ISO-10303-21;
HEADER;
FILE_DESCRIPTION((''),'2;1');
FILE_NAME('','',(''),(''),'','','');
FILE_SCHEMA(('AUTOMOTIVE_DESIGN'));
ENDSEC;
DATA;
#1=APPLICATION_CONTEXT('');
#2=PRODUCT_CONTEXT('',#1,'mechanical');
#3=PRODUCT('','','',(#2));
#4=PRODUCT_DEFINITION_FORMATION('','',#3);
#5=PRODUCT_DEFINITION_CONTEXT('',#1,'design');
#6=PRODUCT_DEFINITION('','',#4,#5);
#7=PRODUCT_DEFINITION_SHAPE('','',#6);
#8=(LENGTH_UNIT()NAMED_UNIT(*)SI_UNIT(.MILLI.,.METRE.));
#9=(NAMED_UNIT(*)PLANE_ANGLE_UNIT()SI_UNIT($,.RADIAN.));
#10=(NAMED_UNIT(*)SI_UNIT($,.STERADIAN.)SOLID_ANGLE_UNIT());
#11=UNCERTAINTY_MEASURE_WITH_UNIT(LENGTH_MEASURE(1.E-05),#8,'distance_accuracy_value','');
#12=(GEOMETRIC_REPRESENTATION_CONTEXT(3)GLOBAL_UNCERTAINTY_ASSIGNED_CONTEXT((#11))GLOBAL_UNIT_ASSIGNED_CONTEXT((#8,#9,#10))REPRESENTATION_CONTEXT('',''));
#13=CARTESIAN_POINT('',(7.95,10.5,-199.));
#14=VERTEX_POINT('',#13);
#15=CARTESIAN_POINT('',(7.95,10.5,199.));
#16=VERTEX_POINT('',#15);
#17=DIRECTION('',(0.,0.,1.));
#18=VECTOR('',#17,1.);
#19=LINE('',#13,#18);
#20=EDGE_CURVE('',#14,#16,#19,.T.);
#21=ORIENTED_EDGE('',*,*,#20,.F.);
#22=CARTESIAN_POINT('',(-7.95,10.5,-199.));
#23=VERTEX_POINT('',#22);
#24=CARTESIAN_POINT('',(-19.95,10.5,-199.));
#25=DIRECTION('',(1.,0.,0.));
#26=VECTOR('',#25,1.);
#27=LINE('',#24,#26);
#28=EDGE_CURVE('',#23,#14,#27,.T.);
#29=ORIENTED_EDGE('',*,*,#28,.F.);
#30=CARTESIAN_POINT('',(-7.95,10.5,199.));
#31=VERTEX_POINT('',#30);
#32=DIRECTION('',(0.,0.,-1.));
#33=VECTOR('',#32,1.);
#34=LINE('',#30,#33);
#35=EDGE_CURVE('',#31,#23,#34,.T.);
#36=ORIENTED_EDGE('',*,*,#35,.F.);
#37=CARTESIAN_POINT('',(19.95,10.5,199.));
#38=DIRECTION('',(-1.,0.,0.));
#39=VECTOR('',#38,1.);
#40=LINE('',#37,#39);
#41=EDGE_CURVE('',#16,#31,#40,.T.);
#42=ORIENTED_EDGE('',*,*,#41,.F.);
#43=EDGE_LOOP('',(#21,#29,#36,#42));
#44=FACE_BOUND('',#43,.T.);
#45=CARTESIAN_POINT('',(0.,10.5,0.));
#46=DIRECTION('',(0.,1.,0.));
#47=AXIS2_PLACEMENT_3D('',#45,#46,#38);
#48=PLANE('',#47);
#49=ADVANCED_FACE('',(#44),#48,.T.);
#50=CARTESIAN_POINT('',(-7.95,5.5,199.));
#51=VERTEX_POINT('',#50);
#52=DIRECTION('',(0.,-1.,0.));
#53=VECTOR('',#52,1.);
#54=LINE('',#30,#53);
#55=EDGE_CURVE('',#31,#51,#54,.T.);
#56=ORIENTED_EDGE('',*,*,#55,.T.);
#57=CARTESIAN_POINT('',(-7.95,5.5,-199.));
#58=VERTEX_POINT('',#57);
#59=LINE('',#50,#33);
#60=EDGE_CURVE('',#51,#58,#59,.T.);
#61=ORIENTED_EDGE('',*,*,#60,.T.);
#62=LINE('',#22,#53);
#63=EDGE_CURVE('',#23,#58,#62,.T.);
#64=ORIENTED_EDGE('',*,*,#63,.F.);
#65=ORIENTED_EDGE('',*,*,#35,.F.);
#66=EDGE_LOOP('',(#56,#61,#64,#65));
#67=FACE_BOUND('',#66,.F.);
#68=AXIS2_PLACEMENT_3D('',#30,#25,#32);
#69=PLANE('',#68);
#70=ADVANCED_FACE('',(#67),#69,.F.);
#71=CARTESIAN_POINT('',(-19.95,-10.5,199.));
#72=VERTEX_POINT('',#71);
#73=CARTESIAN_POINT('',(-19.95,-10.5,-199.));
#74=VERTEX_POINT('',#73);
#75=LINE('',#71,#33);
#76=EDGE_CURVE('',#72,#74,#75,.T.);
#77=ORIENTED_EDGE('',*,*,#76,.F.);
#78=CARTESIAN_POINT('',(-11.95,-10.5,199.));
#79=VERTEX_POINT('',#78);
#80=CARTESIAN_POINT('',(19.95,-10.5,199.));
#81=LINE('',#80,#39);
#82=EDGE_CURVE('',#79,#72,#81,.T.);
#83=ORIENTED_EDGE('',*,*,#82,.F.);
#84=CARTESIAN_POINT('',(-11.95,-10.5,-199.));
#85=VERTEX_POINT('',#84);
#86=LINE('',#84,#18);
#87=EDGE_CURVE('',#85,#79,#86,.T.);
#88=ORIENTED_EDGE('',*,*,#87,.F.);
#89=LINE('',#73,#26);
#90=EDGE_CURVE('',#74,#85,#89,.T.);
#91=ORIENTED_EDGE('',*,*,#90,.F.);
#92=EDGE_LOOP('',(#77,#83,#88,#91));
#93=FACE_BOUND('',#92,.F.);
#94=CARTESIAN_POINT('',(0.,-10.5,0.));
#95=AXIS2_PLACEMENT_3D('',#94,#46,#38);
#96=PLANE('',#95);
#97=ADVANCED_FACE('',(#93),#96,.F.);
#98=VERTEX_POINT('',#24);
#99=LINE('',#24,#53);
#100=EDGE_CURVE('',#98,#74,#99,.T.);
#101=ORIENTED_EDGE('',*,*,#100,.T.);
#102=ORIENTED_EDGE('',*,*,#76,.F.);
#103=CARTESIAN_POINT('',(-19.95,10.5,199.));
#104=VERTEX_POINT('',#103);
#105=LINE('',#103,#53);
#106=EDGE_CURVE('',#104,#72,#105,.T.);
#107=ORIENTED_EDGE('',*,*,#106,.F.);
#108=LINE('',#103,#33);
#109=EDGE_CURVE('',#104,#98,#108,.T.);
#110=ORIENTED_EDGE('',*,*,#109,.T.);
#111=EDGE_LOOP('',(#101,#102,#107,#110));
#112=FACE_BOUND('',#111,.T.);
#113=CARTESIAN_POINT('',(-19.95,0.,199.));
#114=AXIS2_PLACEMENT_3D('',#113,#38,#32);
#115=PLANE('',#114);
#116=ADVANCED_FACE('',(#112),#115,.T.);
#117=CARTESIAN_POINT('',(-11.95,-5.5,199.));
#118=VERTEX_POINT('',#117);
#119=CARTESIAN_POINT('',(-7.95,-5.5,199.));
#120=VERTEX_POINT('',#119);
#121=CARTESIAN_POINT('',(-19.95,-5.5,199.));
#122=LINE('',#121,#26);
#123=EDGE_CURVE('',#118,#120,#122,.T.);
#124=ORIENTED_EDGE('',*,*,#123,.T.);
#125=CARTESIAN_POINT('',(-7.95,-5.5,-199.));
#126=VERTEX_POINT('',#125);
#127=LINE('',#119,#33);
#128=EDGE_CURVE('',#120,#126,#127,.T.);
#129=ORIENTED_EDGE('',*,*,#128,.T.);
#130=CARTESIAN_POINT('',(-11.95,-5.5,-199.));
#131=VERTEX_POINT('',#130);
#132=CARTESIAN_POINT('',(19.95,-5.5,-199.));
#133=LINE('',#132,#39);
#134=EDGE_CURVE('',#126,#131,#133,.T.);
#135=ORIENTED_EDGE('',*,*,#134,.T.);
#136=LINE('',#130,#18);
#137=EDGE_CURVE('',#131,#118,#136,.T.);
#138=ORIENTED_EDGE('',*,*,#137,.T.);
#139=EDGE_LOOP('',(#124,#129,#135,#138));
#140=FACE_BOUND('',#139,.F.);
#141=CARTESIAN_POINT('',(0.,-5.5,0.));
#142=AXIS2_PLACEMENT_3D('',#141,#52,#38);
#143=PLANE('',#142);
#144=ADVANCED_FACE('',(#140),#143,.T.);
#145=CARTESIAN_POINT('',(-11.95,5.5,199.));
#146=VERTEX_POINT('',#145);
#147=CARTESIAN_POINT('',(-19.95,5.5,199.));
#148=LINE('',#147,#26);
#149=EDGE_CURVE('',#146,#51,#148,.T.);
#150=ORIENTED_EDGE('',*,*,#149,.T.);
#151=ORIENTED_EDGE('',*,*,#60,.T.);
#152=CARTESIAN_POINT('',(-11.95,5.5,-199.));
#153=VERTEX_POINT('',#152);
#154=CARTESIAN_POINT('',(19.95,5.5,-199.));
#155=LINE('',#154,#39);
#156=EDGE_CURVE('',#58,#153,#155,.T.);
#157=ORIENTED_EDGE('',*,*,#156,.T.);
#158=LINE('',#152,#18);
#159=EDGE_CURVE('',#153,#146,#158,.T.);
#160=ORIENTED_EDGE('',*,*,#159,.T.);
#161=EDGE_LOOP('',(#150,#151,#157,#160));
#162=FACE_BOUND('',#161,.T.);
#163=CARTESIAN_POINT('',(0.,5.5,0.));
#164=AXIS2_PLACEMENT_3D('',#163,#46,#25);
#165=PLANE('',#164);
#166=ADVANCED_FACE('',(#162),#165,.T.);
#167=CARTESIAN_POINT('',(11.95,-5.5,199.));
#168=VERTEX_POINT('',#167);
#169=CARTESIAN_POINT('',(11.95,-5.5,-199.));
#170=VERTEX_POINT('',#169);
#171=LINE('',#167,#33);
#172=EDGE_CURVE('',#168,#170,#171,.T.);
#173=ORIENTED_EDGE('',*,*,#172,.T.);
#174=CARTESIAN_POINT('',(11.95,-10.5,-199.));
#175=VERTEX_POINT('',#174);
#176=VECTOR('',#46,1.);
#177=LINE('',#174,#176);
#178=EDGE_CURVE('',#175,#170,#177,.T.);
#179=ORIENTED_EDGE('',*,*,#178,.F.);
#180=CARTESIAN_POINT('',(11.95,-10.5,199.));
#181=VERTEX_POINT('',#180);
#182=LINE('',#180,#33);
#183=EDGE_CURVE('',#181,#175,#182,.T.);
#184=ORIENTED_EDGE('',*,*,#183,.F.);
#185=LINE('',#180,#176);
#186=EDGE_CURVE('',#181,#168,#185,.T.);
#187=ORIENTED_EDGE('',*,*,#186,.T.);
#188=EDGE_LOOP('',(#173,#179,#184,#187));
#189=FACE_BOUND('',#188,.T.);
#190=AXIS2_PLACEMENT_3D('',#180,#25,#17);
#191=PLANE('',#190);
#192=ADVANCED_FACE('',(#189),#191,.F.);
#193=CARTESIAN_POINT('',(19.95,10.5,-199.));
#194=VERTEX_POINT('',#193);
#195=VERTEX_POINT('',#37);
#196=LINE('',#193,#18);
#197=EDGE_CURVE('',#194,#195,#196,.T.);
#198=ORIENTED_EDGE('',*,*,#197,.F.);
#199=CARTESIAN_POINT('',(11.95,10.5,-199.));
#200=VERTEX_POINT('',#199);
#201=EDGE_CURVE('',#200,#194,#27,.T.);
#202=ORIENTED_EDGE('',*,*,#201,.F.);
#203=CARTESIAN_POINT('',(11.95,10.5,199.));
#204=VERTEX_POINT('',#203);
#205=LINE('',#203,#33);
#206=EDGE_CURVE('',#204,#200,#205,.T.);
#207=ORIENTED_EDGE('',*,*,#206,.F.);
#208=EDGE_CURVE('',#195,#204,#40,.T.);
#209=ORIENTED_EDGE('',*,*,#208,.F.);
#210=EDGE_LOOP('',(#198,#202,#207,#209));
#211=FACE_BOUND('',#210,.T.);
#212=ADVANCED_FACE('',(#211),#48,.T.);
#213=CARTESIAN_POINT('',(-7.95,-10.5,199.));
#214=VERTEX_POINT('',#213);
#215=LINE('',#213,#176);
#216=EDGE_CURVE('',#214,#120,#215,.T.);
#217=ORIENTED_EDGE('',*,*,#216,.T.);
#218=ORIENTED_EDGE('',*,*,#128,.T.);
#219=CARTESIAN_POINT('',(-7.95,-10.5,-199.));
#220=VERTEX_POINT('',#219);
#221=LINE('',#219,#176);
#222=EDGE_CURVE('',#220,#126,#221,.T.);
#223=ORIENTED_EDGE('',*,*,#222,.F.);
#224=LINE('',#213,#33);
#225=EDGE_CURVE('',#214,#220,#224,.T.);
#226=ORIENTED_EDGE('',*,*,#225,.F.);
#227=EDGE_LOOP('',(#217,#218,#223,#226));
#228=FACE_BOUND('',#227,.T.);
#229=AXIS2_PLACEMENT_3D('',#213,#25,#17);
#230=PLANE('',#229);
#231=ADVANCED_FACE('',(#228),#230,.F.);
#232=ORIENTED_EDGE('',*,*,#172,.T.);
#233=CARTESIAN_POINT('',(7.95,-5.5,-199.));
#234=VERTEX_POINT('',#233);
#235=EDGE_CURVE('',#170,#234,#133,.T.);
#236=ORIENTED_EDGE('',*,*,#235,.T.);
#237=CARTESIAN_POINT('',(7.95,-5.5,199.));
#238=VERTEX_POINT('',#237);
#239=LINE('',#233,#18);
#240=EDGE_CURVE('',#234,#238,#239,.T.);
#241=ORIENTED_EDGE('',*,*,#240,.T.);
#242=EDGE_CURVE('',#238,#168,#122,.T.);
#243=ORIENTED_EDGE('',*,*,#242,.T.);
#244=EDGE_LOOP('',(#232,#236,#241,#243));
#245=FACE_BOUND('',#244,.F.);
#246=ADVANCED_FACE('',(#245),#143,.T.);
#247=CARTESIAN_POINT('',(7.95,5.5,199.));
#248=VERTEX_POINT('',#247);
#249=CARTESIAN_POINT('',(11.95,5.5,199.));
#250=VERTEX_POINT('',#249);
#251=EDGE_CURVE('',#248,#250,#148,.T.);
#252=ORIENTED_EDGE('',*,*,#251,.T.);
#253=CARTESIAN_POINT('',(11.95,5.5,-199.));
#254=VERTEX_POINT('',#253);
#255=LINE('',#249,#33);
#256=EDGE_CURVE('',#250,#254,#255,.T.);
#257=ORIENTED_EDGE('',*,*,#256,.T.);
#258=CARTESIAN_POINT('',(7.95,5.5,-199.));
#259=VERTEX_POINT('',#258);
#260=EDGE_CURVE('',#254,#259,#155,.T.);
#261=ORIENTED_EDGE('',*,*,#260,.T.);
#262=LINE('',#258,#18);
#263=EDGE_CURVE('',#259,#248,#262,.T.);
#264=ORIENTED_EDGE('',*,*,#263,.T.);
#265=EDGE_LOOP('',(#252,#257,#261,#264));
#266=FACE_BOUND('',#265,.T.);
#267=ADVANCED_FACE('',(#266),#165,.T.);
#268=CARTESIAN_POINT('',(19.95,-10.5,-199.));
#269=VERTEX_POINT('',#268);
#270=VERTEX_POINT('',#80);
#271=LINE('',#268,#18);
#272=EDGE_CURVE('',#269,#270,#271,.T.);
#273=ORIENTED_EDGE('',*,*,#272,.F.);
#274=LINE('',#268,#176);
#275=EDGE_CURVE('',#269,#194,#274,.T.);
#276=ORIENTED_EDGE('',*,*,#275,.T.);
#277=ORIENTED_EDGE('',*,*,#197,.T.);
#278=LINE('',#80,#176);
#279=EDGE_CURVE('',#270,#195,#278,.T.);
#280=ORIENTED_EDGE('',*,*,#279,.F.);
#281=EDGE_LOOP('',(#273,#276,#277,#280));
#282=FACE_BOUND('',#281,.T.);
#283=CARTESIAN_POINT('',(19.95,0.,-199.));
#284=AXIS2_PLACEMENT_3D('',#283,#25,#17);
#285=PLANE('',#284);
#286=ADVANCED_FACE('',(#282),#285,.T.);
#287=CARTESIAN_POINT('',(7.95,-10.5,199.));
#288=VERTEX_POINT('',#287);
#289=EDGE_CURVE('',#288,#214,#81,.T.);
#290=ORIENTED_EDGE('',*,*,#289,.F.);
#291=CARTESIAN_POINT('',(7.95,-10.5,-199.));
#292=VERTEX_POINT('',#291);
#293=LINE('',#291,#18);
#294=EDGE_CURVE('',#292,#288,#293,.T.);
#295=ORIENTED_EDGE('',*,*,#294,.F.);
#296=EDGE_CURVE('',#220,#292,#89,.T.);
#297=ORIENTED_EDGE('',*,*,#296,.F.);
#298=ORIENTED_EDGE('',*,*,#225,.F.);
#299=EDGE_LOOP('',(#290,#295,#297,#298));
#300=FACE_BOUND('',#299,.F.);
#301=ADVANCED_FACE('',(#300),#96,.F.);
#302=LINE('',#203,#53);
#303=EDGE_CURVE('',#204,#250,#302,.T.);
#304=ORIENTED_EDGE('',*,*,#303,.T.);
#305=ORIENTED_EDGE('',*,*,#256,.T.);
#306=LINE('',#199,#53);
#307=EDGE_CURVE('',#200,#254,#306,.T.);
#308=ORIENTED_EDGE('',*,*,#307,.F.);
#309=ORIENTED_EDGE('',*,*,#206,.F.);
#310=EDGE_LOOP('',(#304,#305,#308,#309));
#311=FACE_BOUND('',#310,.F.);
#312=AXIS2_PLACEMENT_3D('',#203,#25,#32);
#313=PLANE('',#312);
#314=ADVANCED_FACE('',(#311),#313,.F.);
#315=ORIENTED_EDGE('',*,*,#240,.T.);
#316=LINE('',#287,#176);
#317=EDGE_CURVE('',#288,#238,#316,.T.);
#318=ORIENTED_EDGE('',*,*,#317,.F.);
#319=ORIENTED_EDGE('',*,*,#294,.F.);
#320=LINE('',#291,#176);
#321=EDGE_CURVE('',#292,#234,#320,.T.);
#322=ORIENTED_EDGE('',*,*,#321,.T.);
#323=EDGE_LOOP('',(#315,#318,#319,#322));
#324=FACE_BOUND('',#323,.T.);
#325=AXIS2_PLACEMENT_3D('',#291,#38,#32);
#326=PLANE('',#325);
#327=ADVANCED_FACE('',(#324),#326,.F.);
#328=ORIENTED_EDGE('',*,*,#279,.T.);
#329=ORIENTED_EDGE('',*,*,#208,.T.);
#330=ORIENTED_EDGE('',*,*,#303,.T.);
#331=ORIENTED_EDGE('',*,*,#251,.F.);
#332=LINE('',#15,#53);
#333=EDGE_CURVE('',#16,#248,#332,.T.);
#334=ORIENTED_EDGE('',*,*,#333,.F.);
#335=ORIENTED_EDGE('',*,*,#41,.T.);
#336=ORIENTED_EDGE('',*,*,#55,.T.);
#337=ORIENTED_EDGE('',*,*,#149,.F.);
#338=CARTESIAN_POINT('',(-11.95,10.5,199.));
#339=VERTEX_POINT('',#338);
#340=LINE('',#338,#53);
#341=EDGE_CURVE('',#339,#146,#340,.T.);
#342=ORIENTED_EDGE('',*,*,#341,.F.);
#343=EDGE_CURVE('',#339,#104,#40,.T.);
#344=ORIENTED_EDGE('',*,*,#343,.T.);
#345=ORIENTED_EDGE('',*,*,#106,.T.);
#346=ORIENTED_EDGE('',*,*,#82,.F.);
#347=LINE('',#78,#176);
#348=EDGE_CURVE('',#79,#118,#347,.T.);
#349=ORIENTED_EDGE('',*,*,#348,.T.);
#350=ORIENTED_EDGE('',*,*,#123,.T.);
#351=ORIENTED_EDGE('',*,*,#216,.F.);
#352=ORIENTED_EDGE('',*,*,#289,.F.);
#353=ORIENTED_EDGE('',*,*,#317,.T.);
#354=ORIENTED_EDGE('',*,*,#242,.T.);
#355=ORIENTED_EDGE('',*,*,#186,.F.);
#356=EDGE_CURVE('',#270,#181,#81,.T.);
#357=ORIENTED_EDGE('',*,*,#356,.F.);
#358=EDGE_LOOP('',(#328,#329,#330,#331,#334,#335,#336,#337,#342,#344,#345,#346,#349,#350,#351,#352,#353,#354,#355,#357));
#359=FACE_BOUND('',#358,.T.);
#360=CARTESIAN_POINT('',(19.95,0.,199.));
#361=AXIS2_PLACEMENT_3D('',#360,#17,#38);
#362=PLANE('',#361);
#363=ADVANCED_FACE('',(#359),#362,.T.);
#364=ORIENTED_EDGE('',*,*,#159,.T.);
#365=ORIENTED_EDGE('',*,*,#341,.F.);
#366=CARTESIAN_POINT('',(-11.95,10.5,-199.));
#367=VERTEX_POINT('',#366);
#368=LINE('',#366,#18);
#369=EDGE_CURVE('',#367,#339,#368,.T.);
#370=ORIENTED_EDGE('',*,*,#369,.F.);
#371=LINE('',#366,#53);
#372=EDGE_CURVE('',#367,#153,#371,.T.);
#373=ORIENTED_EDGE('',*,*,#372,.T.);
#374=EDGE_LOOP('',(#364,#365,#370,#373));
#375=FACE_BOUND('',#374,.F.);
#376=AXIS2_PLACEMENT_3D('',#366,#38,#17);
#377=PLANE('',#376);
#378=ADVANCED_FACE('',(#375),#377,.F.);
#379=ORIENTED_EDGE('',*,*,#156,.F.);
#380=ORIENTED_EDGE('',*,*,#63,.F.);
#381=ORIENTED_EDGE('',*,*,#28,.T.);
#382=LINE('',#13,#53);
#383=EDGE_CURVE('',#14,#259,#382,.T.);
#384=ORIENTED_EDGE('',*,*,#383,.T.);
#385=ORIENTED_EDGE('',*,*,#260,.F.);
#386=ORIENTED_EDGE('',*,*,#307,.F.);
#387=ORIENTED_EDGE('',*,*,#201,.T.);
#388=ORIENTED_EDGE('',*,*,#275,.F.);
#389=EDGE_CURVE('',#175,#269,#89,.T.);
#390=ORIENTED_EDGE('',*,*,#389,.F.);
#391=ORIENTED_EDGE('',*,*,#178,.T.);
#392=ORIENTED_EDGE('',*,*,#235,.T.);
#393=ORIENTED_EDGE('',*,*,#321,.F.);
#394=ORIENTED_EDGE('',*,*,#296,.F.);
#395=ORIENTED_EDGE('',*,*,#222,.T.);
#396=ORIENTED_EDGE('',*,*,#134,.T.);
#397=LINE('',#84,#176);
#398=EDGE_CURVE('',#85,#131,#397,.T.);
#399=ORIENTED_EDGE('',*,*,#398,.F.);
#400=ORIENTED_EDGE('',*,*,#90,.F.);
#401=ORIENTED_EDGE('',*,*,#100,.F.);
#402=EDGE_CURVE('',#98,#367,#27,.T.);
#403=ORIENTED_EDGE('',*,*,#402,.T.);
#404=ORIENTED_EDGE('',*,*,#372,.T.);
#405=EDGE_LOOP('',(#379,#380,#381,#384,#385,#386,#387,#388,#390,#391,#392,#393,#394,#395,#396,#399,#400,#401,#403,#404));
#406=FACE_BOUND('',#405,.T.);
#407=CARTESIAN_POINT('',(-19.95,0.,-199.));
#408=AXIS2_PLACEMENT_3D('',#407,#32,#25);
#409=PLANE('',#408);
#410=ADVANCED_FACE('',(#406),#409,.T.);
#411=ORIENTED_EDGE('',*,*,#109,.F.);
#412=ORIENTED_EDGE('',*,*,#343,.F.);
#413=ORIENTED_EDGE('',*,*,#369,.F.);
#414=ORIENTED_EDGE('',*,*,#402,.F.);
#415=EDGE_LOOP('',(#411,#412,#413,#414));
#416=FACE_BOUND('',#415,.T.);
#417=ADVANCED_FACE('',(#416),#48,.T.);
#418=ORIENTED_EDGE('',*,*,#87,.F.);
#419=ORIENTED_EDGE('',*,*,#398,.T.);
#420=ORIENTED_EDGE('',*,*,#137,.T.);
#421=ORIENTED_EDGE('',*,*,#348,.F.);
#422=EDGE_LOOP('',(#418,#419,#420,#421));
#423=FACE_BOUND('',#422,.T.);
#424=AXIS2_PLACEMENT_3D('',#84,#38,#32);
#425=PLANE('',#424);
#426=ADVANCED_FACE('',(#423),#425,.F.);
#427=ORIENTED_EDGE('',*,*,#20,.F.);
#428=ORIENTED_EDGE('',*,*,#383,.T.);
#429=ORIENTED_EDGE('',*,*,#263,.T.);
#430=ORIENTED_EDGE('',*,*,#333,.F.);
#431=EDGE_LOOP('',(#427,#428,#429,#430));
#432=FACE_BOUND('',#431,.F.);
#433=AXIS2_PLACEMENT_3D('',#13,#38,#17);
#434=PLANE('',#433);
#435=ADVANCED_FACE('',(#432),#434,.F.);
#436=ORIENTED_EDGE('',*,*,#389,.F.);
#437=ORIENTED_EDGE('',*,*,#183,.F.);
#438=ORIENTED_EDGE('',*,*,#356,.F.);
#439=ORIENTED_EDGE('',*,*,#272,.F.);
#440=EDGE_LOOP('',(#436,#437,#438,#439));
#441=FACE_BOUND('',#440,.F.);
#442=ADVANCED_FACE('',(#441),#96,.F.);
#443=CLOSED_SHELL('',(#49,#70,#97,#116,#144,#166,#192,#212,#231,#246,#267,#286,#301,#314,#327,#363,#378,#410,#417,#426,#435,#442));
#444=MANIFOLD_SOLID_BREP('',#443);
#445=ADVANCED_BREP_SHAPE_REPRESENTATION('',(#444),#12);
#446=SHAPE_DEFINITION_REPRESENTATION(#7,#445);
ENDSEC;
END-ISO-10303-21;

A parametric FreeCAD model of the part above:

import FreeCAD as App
import Part
import Sketcher
Q = App.Units.Quantity

doc = App.newDocument("Part")
params = doc.addObject("Spreadsheet::Sheet", "Params")
for row, (alias, value) in enumerate([
    ("sketch1_height", "398 mm"),
    ("sketch1_width", "39.9 mm"),
    ("pad1_length", "21 mm"),
    ("sketch2_width", "4 mm"),
    ("sketch2_height", "398 mm"),
    ("pocket1_length", "5 mm"),
], start=1):
    params.set(f"A{row}", alias)
    params.set(f"B{row}", "=" + value)
    params.setAlias(f"B{row}", alias)

body = doc.addObject("PartDesign::Body", "Body")

# Sketch on XZ plane
sketch1 = body.newObject("Sketcher::SketchObject", "Sketch")
sketch1.AttachmentSupport = (doc.getObject("XZ_Plane"), [""])
sketch1.MapMode = "FlatFace"
sketch1.addGeometry([
    Part.LineSegment(App.Vector(-20, 199, 0), App.Vector(20, 199, 0)),
    Part.LineSegment(App.Vector(20, 199, 0), App.Vector(20, -199, 0)),
    Part.LineSegment(App.Vector(20, -199, 0), App.Vector(-20, -199, 0)),
    Part.LineSegment(App.Vector(-20, -199, 0), App.Vector(-20, 199, 0)),
], False)
sketch1.addConstraint([
    Sketcher.Constraint("Coincident", 0, 2, 1, 1),
    Sketcher.Constraint("Coincident", 1, 2, 2, 1),
    Sketcher.Constraint("Coincident", 2, 2, 3, 1),
    Sketcher.Constraint("Coincident", 3, 2, 0, 1),
    Sketcher.Constraint("Horizontal", 0),
    Sketcher.Constraint("Vertical", 1),
    Sketcher.Constraint("Horizontal", 2),
    Sketcher.Constraint("Vertical", 3),
    Sketcher.Constraint("Symmetric", 0, 2, 2, 2, -1, 1),
    Sketcher.Constraint("DistanceY", 1, 2, 1, 1, Q("398 mm")),
    Sketcher.Constraint("DistanceX", 0, 1, 0, 2, Q("39.9 mm")),
])
sketch1.setExpression("Constraints[9]", "Params.sketch1_height")
sketch1.setExpression("Constraints[10]", "Params.sketch1_width")
pad1 = body.newObject("PartDesign::Pad", "Pad")
pad1.Profile = sketch1
pad1.setExpression("Length", "Params.pad1_length")
pad1.Midplane = True

# Sketch on XZ plane
sketch2 = body.newObject("Sketcher::SketchObject", "Sketch001")
sketch2.AttachmentSupport = (doc.getObject("XZ_Plane"), [""])
sketch2.MapMode = "FlatFace"
sketch2.AttachmentOffset = App.Placement(App.Vector(0, 0, -10.5), App.Rotation())
sketch2.addGeometry([
    Part.LineSegment(App.Vector(-11.9, -199, 0), App.Vector(-11.9, 199, 0)),  # 0
    Part.LineSegment(App.Vector(-11.9, 199, 0), App.Vector(-8, 199, 0)),  # 1
    Part.LineSegment(App.Vector(-8, 199, 0), App.Vector(-8, -199, 0)),  # 2
    Part.LineSegment(App.Vector(-8, -199, 0), App.Vector(-11.9, -199, 0)),  # 3
    Part.LineSegment(App.Vector(8, -199, 0), App.Vector(8, 199, 0)),  # 4
    Part.LineSegment(App.Vector(8, 199, 0), App.Vector(11.9, 199, 0)),  # 5
    Part.LineSegment(App.Vector(11.9, 199, 0), App.Vector(11.9, -199, 0)),  # 6
    Part.LineSegment(App.Vector(11.9, -199, 0), App.Vector(8, -199, 0)),  # 7
], False)
sketch2.addConstraint([
    Sketcher.Constraint("Coincident", 0, 2, 1, 1),
    Sketcher.Constraint("Coincident", 1, 2, 2, 1),
    Sketcher.Constraint("Coincident", 2, 2, 3, 1),
    Sketcher.Constraint("Coincident", 3, 2, 0, 1),
    Sketcher.Constraint("Coincident", 4, 2, 5, 1),
    Sketcher.Constraint("Coincident", 5, 2, 6, 1),
    Sketcher.Constraint("Coincident", 6, 2, 7, 1),
    Sketcher.Constraint("Coincident", 7, 2, 4, 1),
    Sketcher.Constraint("Vertical", 0),
    Sketcher.Constraint("Horizontal", 1),
    Sketcher.Constraint("Vertical", 2),
    Sketcher.Constraint("Horizontal", 3),
    Sketcher.Constraint("Vertical", 4),
    Sketcher.Constraint("Horizontal", 5),
    Sketcher.Constraint("Vertical", 6),
    Sketcher.Constraint("Horizontal", 7),
    Sketcher.Constraint("Symmetric", 2, 2, 4, 2, -1, 1),
    Sketcher.Constraint("Symmetric", 0, 2, 6, 2, -1, 1),
    Sketcher.Constraint("Horizontal", 1, 2, 4, 2),
    Sketcher.Constraint("DistanceX", 1, 1, 1, 2, Q("4 mm")),
    Sketcher.Constraint("DistanceY", 0, 1, 0, 2, Q("398 mm")),
    Sketcher.Constraint("DistanceX", 1, 2, 4, 2, Q("15.9 mm")),
])
sketch2.setExpression("Constraints[19]", "Params.sketch2_width")
sketch2.setExpression("Constraints[20]", "Params.sketch2_height")
pocket1 = body.newObject("PartDesign::Pocket", "Pocket")
pocket1.Profile = sketch2
pocket1.setExpression("Length", "Params.pocket1_length")
pocket1.Reversed = True
doc.recompute()

mirrored = body.newObject("PartDesign::Mirrored", "Mirrored")
mirrored.Originals = [pocket1]
mirrored.MirrorPlane = (doc.getObject("XZ_Plane"), [""])
body.Tip = mirrored

doc.recompute()
